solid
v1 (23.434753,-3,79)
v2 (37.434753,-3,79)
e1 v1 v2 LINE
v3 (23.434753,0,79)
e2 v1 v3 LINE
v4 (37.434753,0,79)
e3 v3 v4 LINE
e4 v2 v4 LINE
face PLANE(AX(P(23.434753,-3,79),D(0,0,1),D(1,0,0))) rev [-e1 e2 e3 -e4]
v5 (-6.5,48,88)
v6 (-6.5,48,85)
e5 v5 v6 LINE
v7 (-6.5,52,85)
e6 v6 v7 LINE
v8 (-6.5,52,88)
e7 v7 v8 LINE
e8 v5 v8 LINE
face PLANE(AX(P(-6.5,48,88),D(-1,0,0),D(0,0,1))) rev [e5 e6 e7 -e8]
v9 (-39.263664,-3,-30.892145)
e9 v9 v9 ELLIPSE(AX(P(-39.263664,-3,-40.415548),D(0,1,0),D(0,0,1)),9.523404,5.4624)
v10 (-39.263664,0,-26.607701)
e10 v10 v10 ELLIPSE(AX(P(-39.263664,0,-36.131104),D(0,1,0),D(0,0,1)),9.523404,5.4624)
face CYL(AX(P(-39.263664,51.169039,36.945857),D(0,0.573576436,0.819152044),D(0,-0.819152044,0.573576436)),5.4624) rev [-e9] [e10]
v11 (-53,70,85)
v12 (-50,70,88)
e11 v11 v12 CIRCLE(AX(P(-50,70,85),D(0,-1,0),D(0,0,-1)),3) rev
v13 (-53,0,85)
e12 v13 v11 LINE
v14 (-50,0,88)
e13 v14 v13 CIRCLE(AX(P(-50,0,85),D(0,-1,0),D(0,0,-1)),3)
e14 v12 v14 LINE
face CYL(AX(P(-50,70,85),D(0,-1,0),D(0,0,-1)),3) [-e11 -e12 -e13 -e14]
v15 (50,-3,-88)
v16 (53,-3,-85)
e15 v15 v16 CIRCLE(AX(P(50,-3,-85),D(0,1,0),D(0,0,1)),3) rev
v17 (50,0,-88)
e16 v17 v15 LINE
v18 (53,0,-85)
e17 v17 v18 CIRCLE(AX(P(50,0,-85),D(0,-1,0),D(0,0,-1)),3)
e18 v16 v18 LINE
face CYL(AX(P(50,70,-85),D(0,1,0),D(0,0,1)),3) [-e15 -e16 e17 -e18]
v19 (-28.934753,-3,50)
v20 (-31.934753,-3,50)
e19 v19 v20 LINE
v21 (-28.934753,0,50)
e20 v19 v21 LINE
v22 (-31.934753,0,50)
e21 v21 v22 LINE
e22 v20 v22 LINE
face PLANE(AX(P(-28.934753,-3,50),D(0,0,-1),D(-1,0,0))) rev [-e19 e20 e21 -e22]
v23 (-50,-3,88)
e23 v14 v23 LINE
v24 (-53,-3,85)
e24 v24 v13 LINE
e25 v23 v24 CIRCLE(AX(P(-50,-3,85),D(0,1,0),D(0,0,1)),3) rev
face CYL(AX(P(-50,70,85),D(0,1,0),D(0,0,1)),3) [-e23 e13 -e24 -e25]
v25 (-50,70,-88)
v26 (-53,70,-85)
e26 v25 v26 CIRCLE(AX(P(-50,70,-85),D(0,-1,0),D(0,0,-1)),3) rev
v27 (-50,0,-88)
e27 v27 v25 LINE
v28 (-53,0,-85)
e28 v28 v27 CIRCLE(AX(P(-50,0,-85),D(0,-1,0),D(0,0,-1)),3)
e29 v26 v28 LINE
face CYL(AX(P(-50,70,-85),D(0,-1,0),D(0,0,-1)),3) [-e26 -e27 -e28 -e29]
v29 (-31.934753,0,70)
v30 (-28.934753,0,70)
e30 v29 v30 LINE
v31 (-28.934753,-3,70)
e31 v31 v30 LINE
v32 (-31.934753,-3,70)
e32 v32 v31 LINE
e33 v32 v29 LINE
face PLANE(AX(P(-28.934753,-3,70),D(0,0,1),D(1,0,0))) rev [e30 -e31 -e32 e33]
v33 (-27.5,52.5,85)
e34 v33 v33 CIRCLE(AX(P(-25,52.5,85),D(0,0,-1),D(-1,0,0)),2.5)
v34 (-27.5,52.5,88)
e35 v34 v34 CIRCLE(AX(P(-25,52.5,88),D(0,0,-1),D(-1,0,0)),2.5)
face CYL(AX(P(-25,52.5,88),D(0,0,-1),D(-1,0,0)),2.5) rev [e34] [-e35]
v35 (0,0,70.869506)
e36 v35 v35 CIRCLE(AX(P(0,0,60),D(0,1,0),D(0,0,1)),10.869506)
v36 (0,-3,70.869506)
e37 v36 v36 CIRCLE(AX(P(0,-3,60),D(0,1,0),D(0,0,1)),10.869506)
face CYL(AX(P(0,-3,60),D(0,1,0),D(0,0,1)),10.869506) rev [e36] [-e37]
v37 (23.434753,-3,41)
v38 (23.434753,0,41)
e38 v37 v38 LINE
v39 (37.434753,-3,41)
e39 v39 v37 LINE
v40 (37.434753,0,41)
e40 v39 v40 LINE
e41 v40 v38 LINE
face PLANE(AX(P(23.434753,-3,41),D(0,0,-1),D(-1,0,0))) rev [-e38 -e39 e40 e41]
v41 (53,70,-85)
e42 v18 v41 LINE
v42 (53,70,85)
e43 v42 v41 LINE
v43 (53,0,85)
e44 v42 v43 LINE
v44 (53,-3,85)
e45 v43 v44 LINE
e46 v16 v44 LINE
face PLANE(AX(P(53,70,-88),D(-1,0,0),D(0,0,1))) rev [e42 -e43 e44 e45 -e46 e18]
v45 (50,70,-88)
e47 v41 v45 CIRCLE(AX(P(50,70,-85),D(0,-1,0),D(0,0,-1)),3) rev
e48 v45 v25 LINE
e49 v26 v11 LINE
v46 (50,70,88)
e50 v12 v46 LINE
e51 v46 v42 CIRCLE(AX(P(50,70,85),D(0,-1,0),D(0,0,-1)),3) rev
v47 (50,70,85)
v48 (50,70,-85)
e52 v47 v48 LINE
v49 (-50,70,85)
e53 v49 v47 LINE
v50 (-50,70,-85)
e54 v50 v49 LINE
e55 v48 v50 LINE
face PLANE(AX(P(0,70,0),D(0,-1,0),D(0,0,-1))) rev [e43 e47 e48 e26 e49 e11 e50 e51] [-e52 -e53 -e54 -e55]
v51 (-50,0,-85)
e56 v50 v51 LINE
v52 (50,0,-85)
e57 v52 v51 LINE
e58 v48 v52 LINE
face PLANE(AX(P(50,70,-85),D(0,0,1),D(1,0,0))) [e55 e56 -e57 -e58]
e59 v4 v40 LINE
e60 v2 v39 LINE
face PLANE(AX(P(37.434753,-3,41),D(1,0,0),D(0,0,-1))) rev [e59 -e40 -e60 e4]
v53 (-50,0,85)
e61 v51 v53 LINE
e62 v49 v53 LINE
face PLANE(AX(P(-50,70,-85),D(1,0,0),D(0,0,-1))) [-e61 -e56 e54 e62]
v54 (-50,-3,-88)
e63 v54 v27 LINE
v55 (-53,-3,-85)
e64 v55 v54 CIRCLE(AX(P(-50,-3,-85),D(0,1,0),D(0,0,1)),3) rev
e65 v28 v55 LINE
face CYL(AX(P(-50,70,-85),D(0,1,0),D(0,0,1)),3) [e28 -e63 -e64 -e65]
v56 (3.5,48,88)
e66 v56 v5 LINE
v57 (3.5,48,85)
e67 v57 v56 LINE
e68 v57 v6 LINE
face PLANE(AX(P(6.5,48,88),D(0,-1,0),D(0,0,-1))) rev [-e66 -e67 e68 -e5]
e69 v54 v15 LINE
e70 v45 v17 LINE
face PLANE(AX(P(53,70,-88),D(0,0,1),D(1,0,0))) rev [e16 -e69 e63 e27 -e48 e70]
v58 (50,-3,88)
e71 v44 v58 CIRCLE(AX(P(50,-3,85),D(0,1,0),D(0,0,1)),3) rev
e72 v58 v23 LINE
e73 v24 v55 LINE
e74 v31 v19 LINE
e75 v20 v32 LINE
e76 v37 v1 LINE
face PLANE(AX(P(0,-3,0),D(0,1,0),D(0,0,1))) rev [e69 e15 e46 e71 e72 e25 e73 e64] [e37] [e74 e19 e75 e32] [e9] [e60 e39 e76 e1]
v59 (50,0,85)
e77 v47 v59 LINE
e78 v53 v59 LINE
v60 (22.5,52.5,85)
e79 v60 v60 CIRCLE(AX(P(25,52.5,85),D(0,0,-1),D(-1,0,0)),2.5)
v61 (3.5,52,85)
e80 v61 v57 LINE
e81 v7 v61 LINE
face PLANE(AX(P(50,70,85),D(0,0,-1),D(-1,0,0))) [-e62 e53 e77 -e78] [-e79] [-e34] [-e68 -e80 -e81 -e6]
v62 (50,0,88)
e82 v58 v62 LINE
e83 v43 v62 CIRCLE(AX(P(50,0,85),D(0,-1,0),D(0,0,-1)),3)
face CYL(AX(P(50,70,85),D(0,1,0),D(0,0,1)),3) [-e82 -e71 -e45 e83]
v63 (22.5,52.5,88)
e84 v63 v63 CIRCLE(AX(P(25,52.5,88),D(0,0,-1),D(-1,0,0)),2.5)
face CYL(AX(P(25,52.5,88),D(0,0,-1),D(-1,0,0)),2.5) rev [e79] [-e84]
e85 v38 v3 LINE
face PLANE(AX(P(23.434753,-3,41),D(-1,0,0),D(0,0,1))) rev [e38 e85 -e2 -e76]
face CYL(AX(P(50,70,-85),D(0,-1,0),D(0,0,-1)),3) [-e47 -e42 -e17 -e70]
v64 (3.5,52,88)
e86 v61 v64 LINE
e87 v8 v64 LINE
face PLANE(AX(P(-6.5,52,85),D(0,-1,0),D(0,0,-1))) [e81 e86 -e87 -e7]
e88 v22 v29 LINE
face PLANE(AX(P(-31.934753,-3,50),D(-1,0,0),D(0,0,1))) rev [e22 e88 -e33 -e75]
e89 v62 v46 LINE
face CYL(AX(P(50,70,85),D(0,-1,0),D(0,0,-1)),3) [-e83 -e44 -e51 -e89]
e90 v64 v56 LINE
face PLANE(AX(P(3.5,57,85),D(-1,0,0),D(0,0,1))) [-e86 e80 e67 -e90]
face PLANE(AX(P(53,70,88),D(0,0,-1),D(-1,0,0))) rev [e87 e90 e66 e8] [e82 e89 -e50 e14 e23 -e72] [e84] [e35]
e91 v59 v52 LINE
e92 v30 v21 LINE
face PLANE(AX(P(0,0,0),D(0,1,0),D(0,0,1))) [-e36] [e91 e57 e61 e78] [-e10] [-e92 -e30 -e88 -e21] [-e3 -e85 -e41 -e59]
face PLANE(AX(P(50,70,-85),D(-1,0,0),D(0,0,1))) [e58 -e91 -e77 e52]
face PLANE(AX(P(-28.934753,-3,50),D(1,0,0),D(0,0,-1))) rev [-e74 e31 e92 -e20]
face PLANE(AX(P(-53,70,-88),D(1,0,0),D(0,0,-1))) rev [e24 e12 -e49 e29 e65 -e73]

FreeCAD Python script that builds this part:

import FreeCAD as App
import Part
import Sketcher


def edges_at(feature, points):
    """Names of the edges that pass closest to the given points."""
    edges = feature.Shape.Edges
    near = lambda p: min(range(len(edges)), key=lambda i: edges[i].distToShape(Part.Vertex(*p))[0])
    return sorted({f"Edge{near(p) + 1}" for p in points})


def add_polygon(sketch, points):
    """Adds a closed chain of lines whose ends are joined by coincident constraints."""
    first, n = sketch.GeometryCount, len(points)
    for a, b in zip(points, points[1:] + points[:1]):
        sketch.addGeometry(Part.LineSegment(App.Vector(*a, 0), App.Vector(*b, 0)), False)
    for i in range(n):
        sketch.addConstraint(Sketcher.Constraint("Coincident", first + i, 2, first + (i + 1) % n, 1))

doc = App.newDocument("Part")
body = doc.addObject("PartDesign::Body", "Body")

sketch1 = body.newObject("Sketcher::SketchObject", "Sketch")
sketch1.AttachmentSupport = (doc.getObject("XZ_Plane"), [""])
sketch1.MapMode = "FlatFace"
add_polygon(sketch1, [(-53, -88), (-53, 88), (53, 88), (53, -88)])
add_polygon(sketch1, [(50, 85), (-50, 85), (-50, -85), (50, -85)])
sketch1.addConstraint(Sketcher.Constraint("Vertical", 0))
sketch1.addConstraint(Sketcher.Constraint("Horizontal", 1))
sketch1.addConstraint(Sketcher.Constraint("Vertical", 2))
sketch1.addConstraint(Sketcher.Constraint("Horizontal", 3))
sketch1.addConstraint(Sketcher.Constraint("Horizontal", 4))
sketch1.addConstraint(Sketcher.Constraint("Vertical", 5))
sketch1.addConstraint(Sketcher.Constraint("Horizontal", 6))
sketch1.addConstraint(Sketcher.Constraint("Vertical", 7))
sketch1.addConstraint(Sketcher.Constraint("Symmetric", 0, 2, 2, 2, -1, 1))
sketch1.addConstraint(Sketcher.Constraint("Symmetric", 4, 2, 6, 2, -1, 1))
sketch1.addConstraint(Sketcher.Constraint("DistanceX", 1, 1, 1, 2, 106.0))
sketch1.addConstraint(Sketcher.Constraint("DistanceX", 4, 2, 4, 1, 100.0))
sketch1.addConstraint(Sketcher.Constraint("DistanceY", 0, 1, 0, 2, 176.0))
sketch1.addConstraint(Sketcher.Constraint("DistanceY", 5, 2, 5, 1, 170.0))
pad1 = body.newObject("PartDesign::Pad", "Pad")
pad1.Profile = sketch1
pad1.Length = 70
pad1.Reversed = True
doc.recompute()

fillet = body.newObject("PartDesign::Fillet", "Fillet")
fillet.Base = (pad1, edges_at(pad1, [
    (-53, 35, -88),
    (53, 35, -88),
    (53, 35, 88),
    (-53, 35, 88),
]))
fillet.Radius = 3

sketch2 = body.newObject("Sketcher::SketchObject", "Sketch001")
sketch2.AttachmentSupport = (doc.getObject("XZ_Plane"), [""])
sketch2.MapMode = "FlatFace"
add_polygon(sketch2, [(-53, 88), (-53, -88), (53, -88), (53, 88)])
sketch2.addConstraint(Sketcher.Constraint("Vertical", 0))
sketch2.addConstraint(Sketcher.Constraint("Horizontal", 1))
sketch2.addConstraint(Sketcher.Constraint("Vertical", 2))
sketch2.addConstraint(Sketcher.Constraint("Horizontal", 3))
sketch2.addConstraint(Sketcher.Constraint("Symmetric", 0, 2, 2, 2, -1, 1))
sketch2.addConstraint(Sketcher.Constraint("DistanceX", 1, 1, 1, 2, 106.0))
sketch2.addConstraint(Sketcher.Constraint("DistanceY", 0, 2, 0, 1, 176.0))
pad2 = body.newObject("PartDesign::Pad", "Pad001")
pad2.Profile = sketch2
pad2.Length = 3
doc.recompute()

fillet2 = body.newObject("PartDesign::Fillet", "Fillet001")
fillet2.Base = (pad2, edges_at(pad2, [
    (53, -1.5, 88),
    (53, -1.5, -88),
    (-53, -1.5, -88),
    (-53, -1.5, 88),
]))
fillet2.Radius = 3

sketch3 = body.newObject("Sketcher::SketchObject", "Sketch002")
sketch3.AttachmentSupport = (doc.getObject("XZ_Plane"), [""])
sketch3.MapMode = "FlatFace"
sketch3.addGeometry(Part.Circle(App.Vector(0, 60, 0), App.Vector(0, 0, 1), 11), False)
sketch3.addConstraint(Sketcher.Constraint("PointOnObject", 0, 3, -2))
sketch3.addConstraint(Sketcher.Constraint("DistanceY", -1, 1, 0, 3, 60.0))
sketch3.addConstraint(Sketcher.Constraint("Diameter", 0, 21.739013))
pocket1 = body.newObject("PartDesign::Pocket", "Pocket")
pocket1.Profile = sketch3
pocket1.Length = 3
pocket1.Reversed = True

sketch4 = body.newObject("Sketcher::SketchObject", "Sketch003")
sketch4.AttachmentSupport = (doc.getObject("XZ_Plane"), [""])
sketch4.MapMode = "FlatFace"
add_polygon(sketch4, [(23, 41), (23, 79), (37, 79), (37, 41)])
sketch4.addConstraint(Sketcher.Constraint("Vertical", 0))
sketch4.addConstraint(Sketcher.Constraint("Horizontal", 1))
sketch4.addConstraint(Sketcher.Constraint("Vertical", 2))
sketch4.addConstraint(Sketcher.Constraint("Horizontal", 3))
sketch4.addConstraint(Sketcher.Constraint("DistanceX", 1, 1, 1, 2, 14.0))
sketch4.addConstraint(Sketcher.Constraint("DistanceY", 0, 1, 0, 2, 38.0))
sketch4.addConstraint(Sketcher.Constraint("DistanceY", -1, 1, 0, 2, 79.0))
sketch4.addConstraint(Sketcher.Constraint("DistanceX", -1, 1, 0, 2, 23.434753))
pocket2 = body.newObject("PartDesign::Pocket", "Pocket001")
pocket2.Profile = sketch4
pocket2.Length = 3
pocket2.Reversed = True

sketch5 = body.newObject("Sketcher::SketchObject", "Sketch004")
sketch5.AttachmentSupport = (doc.getObject("XZ_Plane"), [""])
sketch5.MapMode = "FlatFace"
add_polygon(sketch5, [(-31.9, 50), (-31.9, 70), (-28.9, 70), (-28.9, 50)])
sketch5.addConstraint(Sketcher.Constraint("Vertical", 0))
sketch5.addConstraint(Sketcher.Constraint("Horizontal", 1))
sketch5.addConstraint(Sketcher.Constraint("Vertical", 2))
sketch5.addConstraint(Sketcher.Constraint("Horizontal", 3))
sketch5.addConstraint(Sketcher.Constraint("DistanceX", 1, 1, 1, 2, 3.0))
sketch5.addConstraint(Sketcher.Constraint("DistanceY", 0, 1, 0, 2, 20.0))
sketch5.addConstraint(Sketcher.Constraint("DistanceY", -1, 1, 0, 2, 70.0))
sketch5.addConstraint(Sketcher.Constraint("DistanceX", 0, 2, -1, 1, 31.934753))
pocket3 = body.newObject("PartDesign::Pocket", "Pocket002")
pocket3.Profile = sketch5
pocket3.Length = 3
pocket3.Reversed = True

sketch6 = body.newObject("Sketcher::SketchObject", "Sketch005")
sketch6.AttachmentSupport = (doc.getObject("XY_Plane"), [""])
sketch6.MapMode = "FlatFace"
sketch6.AttachmentOffset = App.Placement(App.Vector(0, 0, 85), App.Rotation())
sketch6.addGeometry(Part.Circle(App.Vector(25, 52.5, 0), App.Vector(0, 0, 1), 2.5), False)
sketch6.addGeometry(Part.Circle(App.Vector(-25, 52.5, 0), App.Vector(0, 0, 1), 2.5), False)
sketch6.addConstraint(Sketcher.Constraint("Equal", 0, 1))
sketch6.addConstraint(Sketcher.Constraint("Symmetric", 0, 3, 1, 3, -2))
sketch6.addConstraint(Sketcher.Constraint("Diameter", 0, 5.0))
sketch6.addConstraint(Sketcher.Constraint("DistanceX", -1, 1, 0, 3, 25.0))
sketch6.addConstraint(Sketcher.Constraint("DistanceY", -1, 1, 0, 3, 52.5))
pocket4 = body.newObject("PartDesign::Pocket", "Pocket003")
pocket4.Profile = sketch6
pocket4.Length = 3
pocket4.Reversed = True

sketch7 = body.newObject("Sketcher::SketchObject", "Sketch006")
sketch7.AttachmentSupport = (doc.getObject("XY_Plane"), [""])
sketch7.MapMode = "FlatFace"
sketch7.AttachmentOffset = App.Placement(App.Vector(0, 0, 85), App.Rotation())
add_polygon(sketch7, [(6, 57), (6, 48), (-6, 48), (-6, 57)])
sketch7.addConstraint(Sketcher.Constraint("Vertical", 0))
sketch7.addConstraint(Sketcher.Constraint("Horizontal", 1))
sketch7.addConstraint(Sketcher.Constraint("Vertical", 2))
sketch7.addConstraint(Sketcher.Constraint("Horizontal", 3))
sketch7.addConstraint(Sketcher.Constraint("DistanceX", 1, 2, 1, 1, 13.0))
sketch7.addConstraint(Sketcher.Constraint("DistanceY", 0, 2, 0, 1, 9.0))
sketch7.addConstraint(Sketcher.Constraint("DistanceY", -1, 1, 0, 2, 48.0))
sketch7.addConstraint(Sketcher.Constraint("DistanceX", -1, 1, 0, 2, 6.5))
pocket5 = body.newObject("PartDesign::Pocket", "Pocket004")
pocket5.Profile = sketch7
pocket5.Length = 3
pocket5.Reversed = True

sketch8 = body.newObject("Sketcher::SketchObject", "Sketch007")
sketch8.Placement = App.Placement(App.Vector(0, 34.192973, 48.832626), App.Rotation(App.Vector(1, 0, 0), App.Vector(0, 0.819152044, -0.573576436), App.Vector(0, 0.573576436, 0.819152044), "ZXY"))
sketch8.addGeometry(Part.Circle(App.Vector(-39, 21, 0), App.Vector(0, 0, 1), 5), False)
sketch8.addConstraint(Sketcher.Constraint("Diameter", 0, 10.9248))
sketch8.addConstraint(Sketcher.Constraint("DistanceY", -1, 1, 0, 3, 20.72395))
sketch8.addConstraint(Sketcher.Constraint("DistanceX", 0, 3, -1, 1, 39.263664))
doc.recompute()
hole = body.newObject("PartDesign::Hole", "Hole")
hole.Profile = sketch8
hole.ThreadType = "None"
hole.Diameter = 10.9248
hole.DepthType = "ThroughAll"

sketch9 = body.newObject("Sketcher::SketchObject", "Sketch008")
sketch9.AttachmentSupport = (doc.getObject("XY_Plane"), [""])
sketch9.MapMode = "FlatFace"
sketch9.AttachmentOffset = App.Placement(App.Vector(0, 0, 88), App.Rotation())
add_polygon(sketch9, [(-6, 57), (-6, 52), (4, 52), (4, 57)])
sketch9.addConstraint(Sketcher.Constraint("Vertical", 0))
sketch9.addConstraint(Sketcher.Constraint("Horizontal", 1))
sketch9.addConstraint(Sketcher.Constraint("Vertical", 2))
sketch9.addConstraint(Sketcher.Constraint("Horizontal", 3))
sketch9.addConstraint(Sketcher.Constraint("DistanceX", 1, 1, 1, 2, 10.0))
sketch9.addConstraint(Sketcher.Constraint("DistanceY", 0, 2, 0, 1, 5.0))
sketch9.addConstraint(Sketcher.Constraint("DistanceY", -1, 1, 0, 2, 52.0))
sketch9.addConstraint(Sketcher.Constraint("DistanceX", 0, 2, -1, 1, 6.5))
pad3 = body.newObject("PartDesign::Pad", "Pad002")
pad3.Profile = sketch9
pad3.Length = 3
pad3.Reversed = True

sketch10 = body.newObject("Sketcher::SketchObject", "Sketch009")
sketch10.AttachmentSupport = (doc.getObject("XY_Plane"), [""])
sketch10.MapMode = "FlatFace"
sketch10.AttachmentOffset = App.Placement(App.Vector(0, 0, 88), App.Rotation())
add_polygon(sketch10, [(3.5, 57), (3.5, 48), (6.5, 48), (6.5, 57)])
sketch10.addConstraint(Sketcher.Constraint("Vertical", 0))
sketch10.addConstraint(Sketcher.Constraint("Horizontal", 1))
sketch10.addConstraint(Sketcher.Constraint("Vertical", 2))
sketch10.addConstraint(Sketcher.Constraint("Horizontal", 3))
sketch10.addConstraint(Sketcher.Constraint("DistanceX", 1, 1, 1, 2, 3.0))
sketch10.addConstraint(Sketcher.Constraint("DistanceY", 0, 2, 0, 1, 9.0))
sketch10.addConstraint(Sketcher.Constraint("DistanceY", -1, 1, 0, 2, 48.0))
sketch10.addConstraint(Sketcher.Constraint("DistanceX", -1, 1, 0, 2, 3.5))
pad4 = body.newObject("PartDesign::Pad", "Pad003")
pad4.Profile = sketch10
pad4.Length = 3
pad4.Reversed = True

doc.recompute()
